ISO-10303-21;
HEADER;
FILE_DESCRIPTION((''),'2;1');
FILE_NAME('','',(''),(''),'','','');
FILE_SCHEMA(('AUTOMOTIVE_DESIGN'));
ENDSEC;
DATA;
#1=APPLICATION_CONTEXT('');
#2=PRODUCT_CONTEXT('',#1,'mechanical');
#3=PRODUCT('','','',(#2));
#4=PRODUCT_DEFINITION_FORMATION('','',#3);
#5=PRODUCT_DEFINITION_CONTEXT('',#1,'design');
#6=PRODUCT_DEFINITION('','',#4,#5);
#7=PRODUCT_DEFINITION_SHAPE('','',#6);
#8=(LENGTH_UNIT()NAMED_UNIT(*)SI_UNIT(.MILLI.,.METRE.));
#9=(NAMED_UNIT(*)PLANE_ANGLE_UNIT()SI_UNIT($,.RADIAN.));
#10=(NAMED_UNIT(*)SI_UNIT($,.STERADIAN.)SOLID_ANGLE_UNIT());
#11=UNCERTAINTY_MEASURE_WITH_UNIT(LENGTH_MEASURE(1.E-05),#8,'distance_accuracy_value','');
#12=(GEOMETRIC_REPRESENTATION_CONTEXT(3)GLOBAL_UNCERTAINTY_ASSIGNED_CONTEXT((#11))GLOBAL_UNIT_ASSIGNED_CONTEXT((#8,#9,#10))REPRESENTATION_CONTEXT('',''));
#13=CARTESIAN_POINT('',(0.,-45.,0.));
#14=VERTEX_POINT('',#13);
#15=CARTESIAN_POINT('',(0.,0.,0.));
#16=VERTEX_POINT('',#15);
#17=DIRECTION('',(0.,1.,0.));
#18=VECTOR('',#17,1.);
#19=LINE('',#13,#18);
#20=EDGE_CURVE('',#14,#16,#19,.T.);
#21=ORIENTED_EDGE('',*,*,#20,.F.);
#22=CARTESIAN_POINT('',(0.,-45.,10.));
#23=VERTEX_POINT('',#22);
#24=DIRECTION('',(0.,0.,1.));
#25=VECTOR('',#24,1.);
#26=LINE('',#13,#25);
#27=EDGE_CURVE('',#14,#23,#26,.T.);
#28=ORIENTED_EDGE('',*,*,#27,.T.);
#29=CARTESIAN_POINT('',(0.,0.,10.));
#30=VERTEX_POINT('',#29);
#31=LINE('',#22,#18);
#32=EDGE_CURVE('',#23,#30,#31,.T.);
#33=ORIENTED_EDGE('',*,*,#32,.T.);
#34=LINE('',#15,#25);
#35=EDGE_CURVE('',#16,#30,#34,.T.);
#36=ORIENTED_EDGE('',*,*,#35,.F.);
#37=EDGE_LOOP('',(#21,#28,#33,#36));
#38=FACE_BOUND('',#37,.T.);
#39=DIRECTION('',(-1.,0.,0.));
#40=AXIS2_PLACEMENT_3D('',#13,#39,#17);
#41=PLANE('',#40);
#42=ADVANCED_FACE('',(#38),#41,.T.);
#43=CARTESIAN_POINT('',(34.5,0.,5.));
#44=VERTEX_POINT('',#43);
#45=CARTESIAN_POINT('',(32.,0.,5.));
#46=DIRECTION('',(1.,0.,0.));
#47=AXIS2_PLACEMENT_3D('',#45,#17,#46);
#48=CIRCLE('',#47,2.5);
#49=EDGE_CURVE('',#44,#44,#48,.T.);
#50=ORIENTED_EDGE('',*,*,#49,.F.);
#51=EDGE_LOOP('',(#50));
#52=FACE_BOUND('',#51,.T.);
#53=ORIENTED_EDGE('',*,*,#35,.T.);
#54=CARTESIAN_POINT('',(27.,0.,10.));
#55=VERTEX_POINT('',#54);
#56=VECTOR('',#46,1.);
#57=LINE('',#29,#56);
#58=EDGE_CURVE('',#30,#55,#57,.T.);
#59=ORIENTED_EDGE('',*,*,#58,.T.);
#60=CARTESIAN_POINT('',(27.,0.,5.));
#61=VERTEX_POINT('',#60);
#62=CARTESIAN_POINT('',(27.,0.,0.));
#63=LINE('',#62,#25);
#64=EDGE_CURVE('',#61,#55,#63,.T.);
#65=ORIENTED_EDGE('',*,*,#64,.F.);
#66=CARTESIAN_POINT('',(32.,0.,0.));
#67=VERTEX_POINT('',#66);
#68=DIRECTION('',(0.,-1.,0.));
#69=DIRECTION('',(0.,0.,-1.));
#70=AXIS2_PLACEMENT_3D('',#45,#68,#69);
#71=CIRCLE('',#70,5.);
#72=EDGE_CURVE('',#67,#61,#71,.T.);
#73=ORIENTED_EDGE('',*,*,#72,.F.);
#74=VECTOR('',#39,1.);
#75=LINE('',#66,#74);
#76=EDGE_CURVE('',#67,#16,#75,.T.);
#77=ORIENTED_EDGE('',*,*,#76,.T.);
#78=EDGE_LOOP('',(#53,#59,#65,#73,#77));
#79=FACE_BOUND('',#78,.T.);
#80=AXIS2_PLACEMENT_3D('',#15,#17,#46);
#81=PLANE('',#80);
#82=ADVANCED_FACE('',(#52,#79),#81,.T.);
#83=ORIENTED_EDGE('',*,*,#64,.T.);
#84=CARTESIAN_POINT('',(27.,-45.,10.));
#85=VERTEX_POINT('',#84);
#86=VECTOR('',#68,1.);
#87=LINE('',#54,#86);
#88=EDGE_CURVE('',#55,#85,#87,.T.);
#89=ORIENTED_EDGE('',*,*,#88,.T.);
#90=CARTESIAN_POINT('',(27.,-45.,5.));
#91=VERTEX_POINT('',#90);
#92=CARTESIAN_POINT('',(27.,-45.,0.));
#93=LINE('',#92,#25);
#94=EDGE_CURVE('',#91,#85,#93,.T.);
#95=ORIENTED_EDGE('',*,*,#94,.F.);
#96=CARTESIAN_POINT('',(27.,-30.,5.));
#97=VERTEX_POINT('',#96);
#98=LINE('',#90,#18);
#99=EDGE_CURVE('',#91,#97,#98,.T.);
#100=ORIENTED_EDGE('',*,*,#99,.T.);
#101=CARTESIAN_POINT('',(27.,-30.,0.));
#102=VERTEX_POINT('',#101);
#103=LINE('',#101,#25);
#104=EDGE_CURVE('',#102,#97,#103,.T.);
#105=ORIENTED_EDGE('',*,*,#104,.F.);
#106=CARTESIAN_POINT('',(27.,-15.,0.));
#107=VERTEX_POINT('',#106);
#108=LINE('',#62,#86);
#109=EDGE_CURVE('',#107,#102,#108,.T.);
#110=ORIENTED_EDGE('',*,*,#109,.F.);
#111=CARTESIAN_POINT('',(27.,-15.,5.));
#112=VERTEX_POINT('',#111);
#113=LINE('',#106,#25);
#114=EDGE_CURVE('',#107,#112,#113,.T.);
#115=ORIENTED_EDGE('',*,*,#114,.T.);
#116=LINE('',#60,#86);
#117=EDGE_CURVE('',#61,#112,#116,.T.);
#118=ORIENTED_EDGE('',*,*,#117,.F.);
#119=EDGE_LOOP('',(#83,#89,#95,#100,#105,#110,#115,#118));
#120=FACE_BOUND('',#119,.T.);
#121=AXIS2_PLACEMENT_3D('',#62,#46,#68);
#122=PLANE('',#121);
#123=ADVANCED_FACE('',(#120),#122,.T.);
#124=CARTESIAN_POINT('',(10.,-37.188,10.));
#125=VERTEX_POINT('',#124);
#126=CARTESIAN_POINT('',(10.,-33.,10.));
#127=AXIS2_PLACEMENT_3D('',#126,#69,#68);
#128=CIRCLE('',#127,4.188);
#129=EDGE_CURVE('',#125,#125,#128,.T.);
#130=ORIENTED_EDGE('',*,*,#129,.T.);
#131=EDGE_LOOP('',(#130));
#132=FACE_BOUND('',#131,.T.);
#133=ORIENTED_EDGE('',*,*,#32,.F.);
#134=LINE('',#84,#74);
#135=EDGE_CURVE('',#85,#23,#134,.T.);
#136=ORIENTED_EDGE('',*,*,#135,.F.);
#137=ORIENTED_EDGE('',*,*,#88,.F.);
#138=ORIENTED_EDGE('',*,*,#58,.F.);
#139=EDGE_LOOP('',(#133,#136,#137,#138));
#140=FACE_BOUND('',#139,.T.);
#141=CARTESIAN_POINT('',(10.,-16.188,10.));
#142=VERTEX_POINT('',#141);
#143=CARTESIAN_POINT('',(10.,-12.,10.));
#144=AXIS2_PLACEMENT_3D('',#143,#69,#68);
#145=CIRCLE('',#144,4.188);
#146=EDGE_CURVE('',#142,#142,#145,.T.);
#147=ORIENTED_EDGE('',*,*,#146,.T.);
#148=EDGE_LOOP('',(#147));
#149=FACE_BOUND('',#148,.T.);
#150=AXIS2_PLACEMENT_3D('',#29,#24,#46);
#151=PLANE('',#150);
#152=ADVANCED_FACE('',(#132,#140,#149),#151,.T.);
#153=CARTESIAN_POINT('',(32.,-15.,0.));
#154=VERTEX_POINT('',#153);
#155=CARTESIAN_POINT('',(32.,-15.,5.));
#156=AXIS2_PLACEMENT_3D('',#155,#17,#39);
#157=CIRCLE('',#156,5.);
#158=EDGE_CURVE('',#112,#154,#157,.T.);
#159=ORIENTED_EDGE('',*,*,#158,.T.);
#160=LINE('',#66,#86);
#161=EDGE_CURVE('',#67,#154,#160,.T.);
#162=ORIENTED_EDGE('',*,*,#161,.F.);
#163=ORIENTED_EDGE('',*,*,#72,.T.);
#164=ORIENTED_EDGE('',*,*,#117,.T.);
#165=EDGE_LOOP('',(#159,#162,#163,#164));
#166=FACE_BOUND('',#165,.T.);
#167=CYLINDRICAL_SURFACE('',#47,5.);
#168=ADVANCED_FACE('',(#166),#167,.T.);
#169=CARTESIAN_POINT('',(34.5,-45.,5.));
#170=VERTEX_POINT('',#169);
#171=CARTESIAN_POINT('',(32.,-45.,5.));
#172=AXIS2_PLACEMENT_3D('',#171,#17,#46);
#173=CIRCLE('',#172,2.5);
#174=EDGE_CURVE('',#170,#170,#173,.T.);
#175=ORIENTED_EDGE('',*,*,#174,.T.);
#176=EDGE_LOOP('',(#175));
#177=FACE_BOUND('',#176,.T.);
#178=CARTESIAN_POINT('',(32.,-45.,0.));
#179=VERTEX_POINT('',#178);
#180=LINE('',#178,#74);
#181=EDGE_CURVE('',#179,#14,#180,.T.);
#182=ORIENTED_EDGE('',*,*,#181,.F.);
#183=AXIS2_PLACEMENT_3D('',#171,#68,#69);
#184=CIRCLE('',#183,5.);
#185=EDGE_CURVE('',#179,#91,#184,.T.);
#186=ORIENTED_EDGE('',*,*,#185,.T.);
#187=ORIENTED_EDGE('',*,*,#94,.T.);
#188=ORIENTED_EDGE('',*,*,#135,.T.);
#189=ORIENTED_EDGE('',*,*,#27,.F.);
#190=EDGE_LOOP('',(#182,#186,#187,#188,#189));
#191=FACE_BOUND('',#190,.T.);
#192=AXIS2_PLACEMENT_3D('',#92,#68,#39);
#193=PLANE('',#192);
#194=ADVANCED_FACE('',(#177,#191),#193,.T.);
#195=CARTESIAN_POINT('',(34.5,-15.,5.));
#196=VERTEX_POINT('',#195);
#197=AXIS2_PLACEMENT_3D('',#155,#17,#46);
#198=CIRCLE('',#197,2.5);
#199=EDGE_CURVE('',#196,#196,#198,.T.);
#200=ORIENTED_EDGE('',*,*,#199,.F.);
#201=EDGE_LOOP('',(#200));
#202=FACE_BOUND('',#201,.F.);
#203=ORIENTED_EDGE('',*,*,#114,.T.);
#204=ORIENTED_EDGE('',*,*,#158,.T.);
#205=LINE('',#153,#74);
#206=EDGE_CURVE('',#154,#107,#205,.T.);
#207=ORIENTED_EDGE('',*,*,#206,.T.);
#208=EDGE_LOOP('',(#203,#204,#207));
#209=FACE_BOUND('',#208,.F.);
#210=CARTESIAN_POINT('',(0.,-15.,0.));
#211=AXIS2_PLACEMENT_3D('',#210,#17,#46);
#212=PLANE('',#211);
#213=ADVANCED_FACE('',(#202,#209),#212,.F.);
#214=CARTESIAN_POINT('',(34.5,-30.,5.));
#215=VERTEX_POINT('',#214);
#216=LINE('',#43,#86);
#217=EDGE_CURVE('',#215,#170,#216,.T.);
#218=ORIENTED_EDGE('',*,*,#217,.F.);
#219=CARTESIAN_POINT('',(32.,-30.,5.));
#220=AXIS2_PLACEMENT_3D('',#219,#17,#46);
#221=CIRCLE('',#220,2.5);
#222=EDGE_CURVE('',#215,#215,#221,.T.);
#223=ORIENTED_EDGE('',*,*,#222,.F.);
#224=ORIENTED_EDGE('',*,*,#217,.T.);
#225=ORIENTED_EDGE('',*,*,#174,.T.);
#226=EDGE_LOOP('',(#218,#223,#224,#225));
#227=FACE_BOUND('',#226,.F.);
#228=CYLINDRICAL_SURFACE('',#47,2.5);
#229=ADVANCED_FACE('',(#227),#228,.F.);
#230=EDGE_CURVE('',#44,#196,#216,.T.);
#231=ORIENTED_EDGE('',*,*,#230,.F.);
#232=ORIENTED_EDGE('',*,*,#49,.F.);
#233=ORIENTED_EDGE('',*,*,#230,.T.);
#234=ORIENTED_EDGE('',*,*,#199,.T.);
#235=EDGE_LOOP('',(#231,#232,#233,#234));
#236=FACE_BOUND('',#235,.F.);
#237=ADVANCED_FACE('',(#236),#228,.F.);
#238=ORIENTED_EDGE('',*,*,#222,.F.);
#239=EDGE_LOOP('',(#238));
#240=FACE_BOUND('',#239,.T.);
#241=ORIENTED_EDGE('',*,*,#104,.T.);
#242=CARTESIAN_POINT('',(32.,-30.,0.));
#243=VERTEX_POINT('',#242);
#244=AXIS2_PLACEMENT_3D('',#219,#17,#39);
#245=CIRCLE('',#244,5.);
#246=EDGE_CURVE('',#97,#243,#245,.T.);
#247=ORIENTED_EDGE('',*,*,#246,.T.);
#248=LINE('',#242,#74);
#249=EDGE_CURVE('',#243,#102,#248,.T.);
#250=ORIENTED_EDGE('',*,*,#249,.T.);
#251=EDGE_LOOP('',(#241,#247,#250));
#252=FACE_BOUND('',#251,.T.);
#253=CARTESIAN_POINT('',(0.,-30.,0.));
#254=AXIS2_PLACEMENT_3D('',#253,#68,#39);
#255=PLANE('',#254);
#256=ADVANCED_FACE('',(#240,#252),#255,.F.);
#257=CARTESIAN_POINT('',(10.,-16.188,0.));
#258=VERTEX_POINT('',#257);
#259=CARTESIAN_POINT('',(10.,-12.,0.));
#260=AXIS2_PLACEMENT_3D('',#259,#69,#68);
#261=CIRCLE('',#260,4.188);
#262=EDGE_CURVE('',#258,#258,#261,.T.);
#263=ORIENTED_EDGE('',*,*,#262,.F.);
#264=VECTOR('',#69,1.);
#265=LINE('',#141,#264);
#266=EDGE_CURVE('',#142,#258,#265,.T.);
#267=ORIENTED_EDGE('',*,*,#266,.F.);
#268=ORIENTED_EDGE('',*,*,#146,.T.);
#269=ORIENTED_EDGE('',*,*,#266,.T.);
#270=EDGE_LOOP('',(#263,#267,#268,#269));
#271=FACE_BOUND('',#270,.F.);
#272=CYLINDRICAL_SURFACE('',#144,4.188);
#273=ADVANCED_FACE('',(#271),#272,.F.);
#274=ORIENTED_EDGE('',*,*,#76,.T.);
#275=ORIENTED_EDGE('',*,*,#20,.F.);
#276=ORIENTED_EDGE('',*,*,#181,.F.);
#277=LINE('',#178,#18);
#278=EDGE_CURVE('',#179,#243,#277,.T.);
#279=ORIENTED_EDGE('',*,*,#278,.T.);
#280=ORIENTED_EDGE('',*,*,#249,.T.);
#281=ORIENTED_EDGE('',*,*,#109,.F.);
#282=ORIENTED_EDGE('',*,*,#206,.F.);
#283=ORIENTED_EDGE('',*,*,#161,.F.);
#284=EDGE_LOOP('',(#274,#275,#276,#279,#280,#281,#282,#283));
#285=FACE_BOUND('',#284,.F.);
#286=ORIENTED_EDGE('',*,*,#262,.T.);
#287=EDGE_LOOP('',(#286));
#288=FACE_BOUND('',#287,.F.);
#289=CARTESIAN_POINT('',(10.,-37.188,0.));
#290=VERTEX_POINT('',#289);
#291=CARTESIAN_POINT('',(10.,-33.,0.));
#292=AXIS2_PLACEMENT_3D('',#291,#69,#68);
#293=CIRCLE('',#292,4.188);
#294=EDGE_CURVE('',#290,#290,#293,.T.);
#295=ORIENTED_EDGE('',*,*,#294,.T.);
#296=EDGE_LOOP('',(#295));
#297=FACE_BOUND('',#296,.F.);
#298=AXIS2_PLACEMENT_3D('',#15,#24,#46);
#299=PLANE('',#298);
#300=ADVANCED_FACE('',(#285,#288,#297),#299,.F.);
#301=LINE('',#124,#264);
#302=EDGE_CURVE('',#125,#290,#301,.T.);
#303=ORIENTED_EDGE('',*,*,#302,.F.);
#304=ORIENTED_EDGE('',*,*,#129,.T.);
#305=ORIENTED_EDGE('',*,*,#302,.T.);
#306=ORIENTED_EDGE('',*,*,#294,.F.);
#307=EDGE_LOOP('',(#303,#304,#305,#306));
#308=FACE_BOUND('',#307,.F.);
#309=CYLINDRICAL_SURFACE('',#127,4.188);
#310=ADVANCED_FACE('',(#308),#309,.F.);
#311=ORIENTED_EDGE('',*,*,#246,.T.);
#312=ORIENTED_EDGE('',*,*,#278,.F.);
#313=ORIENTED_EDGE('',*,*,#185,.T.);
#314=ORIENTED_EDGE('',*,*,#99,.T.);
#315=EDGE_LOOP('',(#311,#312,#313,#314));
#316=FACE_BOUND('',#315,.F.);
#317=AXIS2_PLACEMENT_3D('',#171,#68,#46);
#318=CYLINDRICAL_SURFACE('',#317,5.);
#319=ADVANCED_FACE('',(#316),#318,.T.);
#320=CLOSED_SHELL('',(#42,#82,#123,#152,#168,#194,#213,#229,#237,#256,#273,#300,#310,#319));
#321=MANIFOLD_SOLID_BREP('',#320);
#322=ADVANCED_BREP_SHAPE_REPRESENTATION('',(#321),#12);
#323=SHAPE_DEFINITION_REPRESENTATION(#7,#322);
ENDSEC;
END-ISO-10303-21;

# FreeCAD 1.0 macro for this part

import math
import FreeCAD as App
import Part
import Sketcher

V = App.Vector

doc = App.newDocument("Part")
body = doc.addObject("PartDesign::Body", "Body")

sketch1 = body.newObject("Sketcher::SketchObject", "Sketch")
sketch1.AttachmentSupport = (doc.getObject("XY_Plane"), [""])
sketch1.MapMode = "FlatFace"
sketch1.addGeometry(Part.LineSegment(V(27, 0, 0), V(0, 0, 0)), False)
sketch1.addGeometry(Part.LineSegment(V(0, 0, 0), V(0, -45, 0)), False)
sketch1.addGeometry(Part.LineSegment(V(0, -45, 0), V(27, -45, 0)), False)
sketch1.addGeometry(Part.LineSegment(V(27, -45, 0), V(27, 0, 0)), False)
sketch1.addConstraint(Sketcher.Constraint("Coincident", 0, 2, 1, 1))
sketch1.addConstraint(Sketcher.Constraint("Coincident", 1, 2, 2, 1))
sketch1.addConstraint(Sketcher.Constraint("Coincident", 2, 2, 3, 1))
sketch1.addConstraint(Sketcher.Constraint("Coincident", 3, 2, 0, 1))
sketch1.addConstraint(Sketcher.Constraint("Horizontal", 0))
sketch1.addConstraint(Sketcher.Constraint("Vertical", 1))
sketch1.addConstraint(Sketcher.Constraint("Horizontal", 2))
sketch1.addConstraint(Sketcher.Constraint("Vertical", 3))
sketch1.addConstraint(Sketcher.Constraint("Coincident", 0, 2, -1, 1))
sketch1.addConstraint(Sketcher.Constraint("DistanceX", 0, 2, 0, 1, 27.0))
sketch1.addConstraint(Sketcher.Constraint("DistanceY", 1, 2, 1, 1, 45.0))
pad1 = body.newObject("PartDesign::Pad", "Pad")
pad1.Profile = sketch1
pad1.Length = 10

sketch2 = body.newObject("Sketcher::SketchObject", "Sketch001")
sketch2.AttachmentSupport = (doc.getObject("XZ_Plane"), [""])
sketch2.MapMode = "FlatFace"
sketch2.addGeometry(Part.ArcOfCircle(Part.Circle(V(32, 5, 0), V(0, 0, 1), 5), math.radians(-90), math.radians(180)), False)
sketch2.addGeometry(Part.LineSegment(V(32, 0, 0), V(27, 0, 0)), False)
sketch2.addGeometry(Part.LineSegment(V(27, 0, 0), V(27, 5, 0)), False)
sketch2.addConstraint(Sketcher.Constraint("Tangent", 0, 1, 1, 1))
sketch2.addConstraint(Sketcher.Constraint("Coincident", 1, 2, 2, 1))
sketch2.addConstraint(Sketcher.Constraint("Tangent", 2, 2, 0, 2))
sketch2.addConstraint(Sketcher.Constraint("Horizontal", 1))
sketch2.addConstraint(Sketcher.Constraint("Vertical", 2))
sketch2.addConstraint(Sketcher.Constraint("PointOnObject", 0, 1, -1))
sketch2.addConstraint(Sketcher.Constraint("Radius", 0, 5.0))
sketch2.addConstraint(Sketcher.Constraint("DistanceX", -1, 1, 0, 3, 32.0))
pad2 = body.newObject("PartDesign::Pad", "Pad001")
pad2.Profile = sketch2
pad2.Length = 15
doc.recompute()

datumplane = body.newObject("PartDesign::Plane", "DatumPlane")
datumplane.AttachmentSupport = (doc.getObject("XZ_Plane"), [""])
datumplane.MapMode = "FlatFace"
datumplane.AttachmentOffset = App.Placement(V(0, 0, 22.5), App.Rotation())
mirrored = body.newObject("PartDesign::Mirrored", "Mirrored")
mirrored.Originals = [pad2]
mirrored.MirrorPlane = (datumplane, [""])
body.Tip = mirrored

sketch3 = body.newObject("Sketcher::SketchObject", "Sketch002")
sketch3.AttachmentSupport = (doc.getObject("XZ_Plane"), [""])
sketch3.MapMode = "FlatFace"
sketch3.addGeometry(Part.Circle(V(32, 5, 0), V(0, 0, 1), 2.5), False)
sketch3.addConstraint(Sketcher.Constraint("Diameter", 0, 5.0))
sketch3.addConstraint(Sketcher.Constraint("DistanceY", -1, 1, 0, 3, 5.0))
sketch3.addConstraint(Sketcher.Constraint("DistanceX", -1, 1, 0, 3, 32.0))
pocket1 = body.newObject("PartDesign::Pocket", "Pocket")
pocket1.Profile = sketch3
pocket1.Length = 45
pocket1.Reversed = True

sketch4 = body.newObject("Sketcher::SketchObject", "Sketch003")
sketch4.AttachmentSupport = (doc.getObject("XY_Plane"), [""])
sketch4.MapMode = "FlatFace"
sketch4.AttachmentOffset = App.Placement(V(0, 0, 10), App.Rotation())
sketch4.addGeometry(Part.Circle(V(10, -12, 0), V(0, 0, 1), 4.2), False)
sketch4.addGeometry(Part.Circle(V(10, -33, 0), V(0, 0, 1), 4.2), False)
sketch4.addConstraint(Sketcher.Constraint("Equal", 0, 1))
sketch4.addConstraint(Sketcher.Constraint("Vertical", 0, 3, 1, 3))
sketch4.addConstraint(Sketcher.Constraint("Diameter", 0, 8.376))
sketch4.addConstraint(Sketcher.Constraint("DistanceX", -1, 1, 0, 3, 10.0))
sketch4.addConstraint(Sketcher.Constraint("DistanceY", 0, 3, -1, 1, 12.0))
sketch4.addConstraint(Sketcher.Constraint("DistanceY", 1, 3, -1, 1, 33.0))
doc.recompute()
hole = body.newObject("PartDesign::Hole", "Hole")
hole.Profile = sketch4
hole.ThreadType = "None"
hole.Diameter = 8.376
hole.DepthType = "Dimension"
hole.Depth = 27.3
hole.DrillPoint = "Flat"

doc.recompute()
